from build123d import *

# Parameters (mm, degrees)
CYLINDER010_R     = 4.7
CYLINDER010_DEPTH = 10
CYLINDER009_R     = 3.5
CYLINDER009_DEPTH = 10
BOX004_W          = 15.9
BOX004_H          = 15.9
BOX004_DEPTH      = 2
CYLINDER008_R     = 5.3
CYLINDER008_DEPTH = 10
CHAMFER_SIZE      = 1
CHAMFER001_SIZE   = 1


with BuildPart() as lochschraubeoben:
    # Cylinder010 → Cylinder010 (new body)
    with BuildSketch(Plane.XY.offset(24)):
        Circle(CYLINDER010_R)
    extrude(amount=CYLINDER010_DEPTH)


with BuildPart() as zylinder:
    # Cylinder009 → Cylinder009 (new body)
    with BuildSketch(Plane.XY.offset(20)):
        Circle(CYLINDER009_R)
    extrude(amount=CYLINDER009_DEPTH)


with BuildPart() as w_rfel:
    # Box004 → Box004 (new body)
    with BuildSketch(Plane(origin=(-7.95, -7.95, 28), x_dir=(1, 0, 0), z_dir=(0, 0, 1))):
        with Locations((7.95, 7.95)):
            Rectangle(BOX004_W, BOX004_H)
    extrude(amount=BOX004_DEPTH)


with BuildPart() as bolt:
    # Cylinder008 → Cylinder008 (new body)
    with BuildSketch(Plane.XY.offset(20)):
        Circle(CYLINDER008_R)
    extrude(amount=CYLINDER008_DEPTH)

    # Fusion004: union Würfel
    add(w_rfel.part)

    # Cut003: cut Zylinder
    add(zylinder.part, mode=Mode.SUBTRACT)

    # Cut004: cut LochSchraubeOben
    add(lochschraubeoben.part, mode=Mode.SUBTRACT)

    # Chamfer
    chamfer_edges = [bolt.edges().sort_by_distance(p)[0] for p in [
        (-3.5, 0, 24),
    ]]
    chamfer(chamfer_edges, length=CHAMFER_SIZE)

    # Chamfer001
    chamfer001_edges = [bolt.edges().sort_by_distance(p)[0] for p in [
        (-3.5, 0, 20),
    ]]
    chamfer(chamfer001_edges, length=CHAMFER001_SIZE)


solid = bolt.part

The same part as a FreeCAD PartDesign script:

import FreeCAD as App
import Part
import Sketcher
from FreeCAD import Vector


def edges_at(feature, points):
    """Names of the edges that pass closest to the given points."""
    edges = feature.Shape.Edges
    near = lambda p: min(range(len(edges)), key=lambda i: edges[i].distToShape(Part.Vertex(*p))[0])
    return sorted({f"Edge{near(p) + 1}" for p in points})


def add_polygon(sketch, points):
    """Adds a closed chain of lines whose ends are joined by coincident constraints."""
    first, n = sketch.GeometryCount, len(points)
    for a, b in zip(points, points[1:] + points[:1]):
        sketch.addGeometry(Part.LineSegment(App.Vector(*a, 0), App.Vector(*b, 0)), False)
    for i in range(n):
        sketch.addConstraint(Sketcher.Constraint("Coincident", first + i, 2, first + (i + 1) % n, 1))

doc = App.newDocument("Part")
body = doc.addObject("PartDesign::Body", "Body")

# Sketch on XY plane
sketch1 = body.newObject("Sketcher::SketchObject", "Sketch")
sketch1.AttachmentSupport = (doc.getObject("XY_Plane"), [""])
sketch1.MapMode = "FlatFace"
sketch1.AttachmentOffset = App.Placement(Vector(0, 0, 24), App.Rotation())
sketch1.addGeometry(Part.Circle(Vector(0, 0, 0), Vector(0, 0, 1), 4.7), False)
sketch1.addConstraint([
    Sketcher.Constraint("Coincident", 0, 3, -1, 1),
    Sketcher.Constraint("Diameter", 0, 9.4),
])
pad1 = body.newObject("PartDesign::Pad", "Pad")
pad1.Profile = sketch1
pad1.Length = 10
body2 = doc.addObject("PartDesign::Body", "Body001")

# Sketch on XY plane
sketch2 = body2.newObject("Sketcher::SketchObject", "Sketch001")
sketch2.AttachmentSupport = (doc.getObject("XY_Plane001"), [""])
sketch2.MapMode = "FlatFace"
sketch2.AttachmentOffset = App.Placement(Vector(0, 0, 20), App.Rotation())
sketch2.addGeometry(Part.Circle(Vector(0, 0, 0), Vector(0, 0, 1), 3.5), False)
sketch2.addConstraint([
    Sketcher.Constraint("Coincident", 0, 3, -1, 1),
    Sketcher.Constraint("Diameter", 0, 7.0),
])
pad2 = body2.newObject("PartDesign::Pad", "Pad001")
pad2.Profile = sketch2
pad2.Length = 10
body3 = doc.addObject("PartDesign::Body", "Body002")

# Sketch on XY plane
sketch3 = body3.newObject("Sketcher::SketchObject", "Sketch002")
sketch3.AttachmentSupport = (doc.getObject("XY_Plane002"), [""])
sketch3.MapMode = "FlatFace"
sketch3.AttachmentOffset = App.Placement(Vector(0, 0, 28), App.Rotation())
add_polygon(sketch3, [(-8, 8), (-8, -8), (8, -8), (8, 8)])  # lines 0-3
sketch3.addConstraint([
    Sketcher.Constraint("Vertical", 0),
    Sketcher.Constraint("Horizontal", 1),
    Sketcher.Constraint("Vertical", 2),
    Sketcher.Constraint("Horizontal", 3),
    Sketcher.Constraint("Symmetric", 0, 2, 2, 2, -1, 1),
    Sketcher.Constraint("Equal", 3, 0),
    Sketcher.Constraint("DistanceX", 1, 1, 1, 2, 15.9),
])
pad3 = body3.newObject("PartDesign::Pad", "Pad002")
pad3.Profile = sketch3
pad3.Length = 2
body4 = doc.addObject("PartDesign::Body", "Body003")

# Sketch on XY plane
sketch4 = body4.newObject("Sketcher::SketchObject", "Sketch003")
sketch4.AttachmentSupport = (doc.getObject("XY_Plane003"), [""])
sketch4.MapMode = "FlatFace"
sketch4.AttachmentOffset = App.Placement(Vector(0, 0, 20), App.Rotation())
sketch4.addGeometry(Part.Circle(Vector(0, 0, 0), Vector(0, 0, 1), 5), False)
sketch4.addConstraint([
    Sketcher.Constraint("Coincident", 0, 3, -1, 1),
    Sketcher.Constraint("Diameter", 0, 10.6),
])
pad4 = body4.newObject("PartDesign::Pad", "Pad003")
pad4.Profile = sketch4
pad4.Length = 10
doc.recompute()

boolean = body4.newObject("PartDesign::Boolean", "Boolean")
boolean.Type = "Fuse"
boolean.addObjects([body3])
doc.recompute()

boolean2 = body4.newObject("PartDesign::Boolean", "Boolean001")
boolean2.Type = "Cut"
boolean2.addObjects([body2])
doc.recompute()

boolean3 = body4.newObject("PartDesign::Boolean", "Boolean002")
boolean3.Type = "Cut"
boolean3.addObjects([body])
doc.recompute()

chamfer = body4.newObject("PartDesign::Chamfer", "Chamfer")
chamfer.Base = (boolean3, edges_at(boolean3, [(-3.5, 0, 24)]))
chamfer.Size = 1
doc.recompute()

chamfer2 = body4.newObject("PartDesign::Chamfer", "Chamfer001")
chamfer2.Base = (chamfer, edges_at(chamfer, [(-3.5, 0, 20)]))
chamfer2.Size = 1

doc.recompute()
